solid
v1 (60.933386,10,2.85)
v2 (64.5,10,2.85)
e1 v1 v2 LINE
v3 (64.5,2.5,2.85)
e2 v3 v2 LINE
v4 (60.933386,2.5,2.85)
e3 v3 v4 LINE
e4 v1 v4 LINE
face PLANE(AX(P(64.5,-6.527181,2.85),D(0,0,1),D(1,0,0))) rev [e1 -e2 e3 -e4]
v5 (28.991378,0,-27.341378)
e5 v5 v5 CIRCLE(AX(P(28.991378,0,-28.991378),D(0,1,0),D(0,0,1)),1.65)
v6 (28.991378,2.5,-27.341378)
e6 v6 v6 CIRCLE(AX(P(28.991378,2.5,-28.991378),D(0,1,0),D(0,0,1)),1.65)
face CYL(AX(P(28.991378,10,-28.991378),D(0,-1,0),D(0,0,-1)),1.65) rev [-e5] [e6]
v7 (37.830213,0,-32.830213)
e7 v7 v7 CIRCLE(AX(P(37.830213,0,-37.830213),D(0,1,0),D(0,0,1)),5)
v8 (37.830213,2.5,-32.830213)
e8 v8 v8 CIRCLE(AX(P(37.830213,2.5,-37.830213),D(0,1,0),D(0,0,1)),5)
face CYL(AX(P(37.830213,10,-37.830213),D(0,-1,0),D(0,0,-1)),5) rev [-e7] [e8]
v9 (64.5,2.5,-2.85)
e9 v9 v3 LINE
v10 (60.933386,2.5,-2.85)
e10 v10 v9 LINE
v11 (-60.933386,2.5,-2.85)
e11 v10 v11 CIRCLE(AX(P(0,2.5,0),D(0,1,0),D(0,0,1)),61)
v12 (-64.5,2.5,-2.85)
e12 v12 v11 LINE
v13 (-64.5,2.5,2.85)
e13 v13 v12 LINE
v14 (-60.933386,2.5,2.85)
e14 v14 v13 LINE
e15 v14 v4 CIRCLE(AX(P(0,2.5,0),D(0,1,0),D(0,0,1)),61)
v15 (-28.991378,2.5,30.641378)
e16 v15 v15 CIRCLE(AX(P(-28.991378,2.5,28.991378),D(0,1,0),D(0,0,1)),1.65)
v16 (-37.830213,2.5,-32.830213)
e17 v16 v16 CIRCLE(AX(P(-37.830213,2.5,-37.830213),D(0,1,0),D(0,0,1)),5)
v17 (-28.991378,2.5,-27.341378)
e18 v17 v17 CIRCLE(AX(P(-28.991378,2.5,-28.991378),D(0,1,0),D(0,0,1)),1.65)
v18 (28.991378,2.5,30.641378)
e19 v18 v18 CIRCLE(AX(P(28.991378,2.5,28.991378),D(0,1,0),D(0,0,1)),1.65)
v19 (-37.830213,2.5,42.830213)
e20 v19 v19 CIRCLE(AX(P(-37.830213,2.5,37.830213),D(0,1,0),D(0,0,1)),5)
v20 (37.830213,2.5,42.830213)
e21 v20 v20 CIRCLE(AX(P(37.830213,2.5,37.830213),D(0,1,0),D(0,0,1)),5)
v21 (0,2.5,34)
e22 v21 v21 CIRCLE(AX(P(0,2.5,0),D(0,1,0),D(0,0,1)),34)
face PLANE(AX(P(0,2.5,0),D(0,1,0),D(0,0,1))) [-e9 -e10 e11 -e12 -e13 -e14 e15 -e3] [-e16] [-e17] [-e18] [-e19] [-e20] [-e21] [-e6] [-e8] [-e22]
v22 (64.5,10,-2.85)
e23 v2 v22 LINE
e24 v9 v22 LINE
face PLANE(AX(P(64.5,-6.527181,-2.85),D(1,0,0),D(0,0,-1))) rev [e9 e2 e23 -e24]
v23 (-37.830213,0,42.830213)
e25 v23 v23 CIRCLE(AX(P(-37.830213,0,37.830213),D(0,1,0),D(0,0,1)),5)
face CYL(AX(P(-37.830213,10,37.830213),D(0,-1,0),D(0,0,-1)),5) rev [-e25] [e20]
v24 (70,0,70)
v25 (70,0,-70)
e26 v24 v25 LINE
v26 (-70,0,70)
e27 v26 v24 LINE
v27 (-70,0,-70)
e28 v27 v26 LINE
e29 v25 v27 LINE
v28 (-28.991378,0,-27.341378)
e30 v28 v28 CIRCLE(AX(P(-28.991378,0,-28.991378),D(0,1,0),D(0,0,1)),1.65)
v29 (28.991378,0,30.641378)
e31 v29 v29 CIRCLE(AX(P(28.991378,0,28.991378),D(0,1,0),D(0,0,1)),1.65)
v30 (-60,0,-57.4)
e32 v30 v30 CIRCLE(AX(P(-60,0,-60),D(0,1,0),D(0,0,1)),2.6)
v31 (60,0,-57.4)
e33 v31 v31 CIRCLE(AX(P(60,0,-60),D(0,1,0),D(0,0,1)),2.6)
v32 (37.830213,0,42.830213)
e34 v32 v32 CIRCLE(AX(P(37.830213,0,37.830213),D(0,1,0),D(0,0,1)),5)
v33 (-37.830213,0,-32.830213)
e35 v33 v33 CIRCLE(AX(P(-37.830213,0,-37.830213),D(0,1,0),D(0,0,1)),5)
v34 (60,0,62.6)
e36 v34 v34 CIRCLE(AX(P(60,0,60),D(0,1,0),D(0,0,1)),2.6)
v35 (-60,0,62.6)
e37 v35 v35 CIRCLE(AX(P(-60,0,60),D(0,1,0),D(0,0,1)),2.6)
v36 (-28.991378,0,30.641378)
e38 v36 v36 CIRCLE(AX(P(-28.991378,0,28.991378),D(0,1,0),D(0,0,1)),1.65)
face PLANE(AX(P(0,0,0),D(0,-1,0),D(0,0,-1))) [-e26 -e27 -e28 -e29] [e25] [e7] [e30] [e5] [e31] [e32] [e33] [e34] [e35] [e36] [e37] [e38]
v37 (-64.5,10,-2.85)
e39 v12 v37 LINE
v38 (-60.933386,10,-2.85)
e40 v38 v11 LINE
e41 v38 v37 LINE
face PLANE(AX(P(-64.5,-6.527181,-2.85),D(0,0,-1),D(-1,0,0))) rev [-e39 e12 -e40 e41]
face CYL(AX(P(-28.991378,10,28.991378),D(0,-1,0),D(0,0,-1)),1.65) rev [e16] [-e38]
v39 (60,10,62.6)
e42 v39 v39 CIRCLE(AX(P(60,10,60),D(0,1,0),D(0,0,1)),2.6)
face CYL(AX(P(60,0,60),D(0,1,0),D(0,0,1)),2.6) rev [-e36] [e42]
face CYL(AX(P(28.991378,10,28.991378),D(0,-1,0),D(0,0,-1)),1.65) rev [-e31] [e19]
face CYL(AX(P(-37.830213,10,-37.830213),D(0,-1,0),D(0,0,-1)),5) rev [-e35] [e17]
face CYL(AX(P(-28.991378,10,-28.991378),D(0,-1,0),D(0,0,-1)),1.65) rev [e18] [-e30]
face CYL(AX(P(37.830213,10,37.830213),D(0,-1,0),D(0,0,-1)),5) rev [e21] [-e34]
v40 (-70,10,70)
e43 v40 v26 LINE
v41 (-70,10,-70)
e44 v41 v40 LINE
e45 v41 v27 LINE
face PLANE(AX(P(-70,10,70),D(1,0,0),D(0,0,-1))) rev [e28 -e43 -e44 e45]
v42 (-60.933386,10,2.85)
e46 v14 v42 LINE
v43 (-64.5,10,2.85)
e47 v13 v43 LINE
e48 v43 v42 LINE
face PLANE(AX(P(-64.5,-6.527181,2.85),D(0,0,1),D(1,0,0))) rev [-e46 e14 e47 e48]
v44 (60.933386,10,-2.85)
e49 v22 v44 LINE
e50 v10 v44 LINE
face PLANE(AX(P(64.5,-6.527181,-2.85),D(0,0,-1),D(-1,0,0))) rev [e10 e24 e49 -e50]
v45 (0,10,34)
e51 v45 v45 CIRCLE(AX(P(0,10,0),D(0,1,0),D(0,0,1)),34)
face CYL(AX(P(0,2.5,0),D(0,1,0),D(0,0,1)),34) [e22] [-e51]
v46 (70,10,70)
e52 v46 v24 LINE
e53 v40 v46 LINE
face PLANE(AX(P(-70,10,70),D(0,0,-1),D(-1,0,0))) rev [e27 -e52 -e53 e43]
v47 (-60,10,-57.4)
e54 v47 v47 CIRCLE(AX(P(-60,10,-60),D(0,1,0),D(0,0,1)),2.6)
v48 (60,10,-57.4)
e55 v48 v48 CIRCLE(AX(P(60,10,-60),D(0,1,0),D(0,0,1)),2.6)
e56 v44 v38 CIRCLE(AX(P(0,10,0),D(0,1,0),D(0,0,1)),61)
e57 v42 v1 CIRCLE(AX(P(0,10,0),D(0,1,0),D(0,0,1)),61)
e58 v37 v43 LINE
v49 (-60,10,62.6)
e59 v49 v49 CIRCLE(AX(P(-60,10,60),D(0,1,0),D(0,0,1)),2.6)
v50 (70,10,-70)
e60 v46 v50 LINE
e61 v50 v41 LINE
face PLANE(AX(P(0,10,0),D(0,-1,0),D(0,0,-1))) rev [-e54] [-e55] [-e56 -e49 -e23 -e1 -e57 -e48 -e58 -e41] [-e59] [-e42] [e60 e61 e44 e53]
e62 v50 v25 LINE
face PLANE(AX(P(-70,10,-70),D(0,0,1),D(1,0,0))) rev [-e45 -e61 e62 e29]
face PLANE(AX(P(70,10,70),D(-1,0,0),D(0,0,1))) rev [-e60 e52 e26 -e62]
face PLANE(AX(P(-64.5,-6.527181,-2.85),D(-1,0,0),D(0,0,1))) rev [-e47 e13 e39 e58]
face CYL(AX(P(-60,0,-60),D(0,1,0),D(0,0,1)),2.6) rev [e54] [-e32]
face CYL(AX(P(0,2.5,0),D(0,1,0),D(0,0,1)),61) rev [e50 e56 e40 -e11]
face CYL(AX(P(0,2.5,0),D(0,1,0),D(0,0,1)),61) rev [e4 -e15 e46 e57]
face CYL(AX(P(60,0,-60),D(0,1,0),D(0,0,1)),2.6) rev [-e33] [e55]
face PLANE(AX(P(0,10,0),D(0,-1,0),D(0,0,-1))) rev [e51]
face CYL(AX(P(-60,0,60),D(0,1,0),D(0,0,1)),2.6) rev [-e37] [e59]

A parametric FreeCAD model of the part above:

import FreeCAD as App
import Part
import Sketcher


def add_polygon(sketch, points):
    """Adds a closed chain of lines whose ends are joined by coincident constraints."""
    first, n = sketch.GeometryCount, len(points)
    for a, b in zip(points, points[1:] + points[:1]):
        sketch.addGeometry(Part.LineSegment(App.Vector(*a, 0), App.Vector(*b, 0)), False)
    for i in range(n):
        sketch.addConstraint(Sketcher.Constraint("Coincident", first + i, 2, first + (i + 1) % n, 1))

doc = App.newDocument("Part")
params = doc.addObject("Spreadsheet::Sheet", "Params")
for row, (alias, value) in enumerate([
    ("sketch1_diameter", "10 mm"),
    ("sketch1_diameter2", "3.3 mm"),
    ("sketch1_width", "140 mm"),
    ("pad1_length", "10 mm"),
    ("sketch2_diameter", "5.2 mm"),
    ("sketch3_diameter", "122 mm"),
    ("sketch3_diameter2", "92 mm"),
    ("pocket2_length", "7.5 mm"),
    ("sketch4_diameter", "92 mm"),
    ("sketch4_diameter2", "68 mm"),
    ("pocket3_length", "7.5 mm"),
    ("sketch5_width", "7 mm"),
    ("sketch5_height", "5.7 mm"),
    ("pocket4_length", "7.5 mm"),
], start=1):
    params.set(f"A{row}", alias)
    params.set(f"B{row}", "=" + value)
    params.setAlias(f"B{row}", alias)

body = doc.addObject("PartDesign::Body", "Body")

sketch1 = doc.addObject("Sketcher::SketchObject", "Sketch")
body.addObject(sketch1)
sketch1.AttachmentSupport = (doc.XZ_Plane, [""])
sketch1.MapMode = "FlatFace"
add_polygon(sketch1, [(-70, -70), (-70, 70), (70, 70), (70, -70)])
sketch1.addGeometry(Part.Circle(App.Vector(-37.8, 37.8, 0), App.Vector(0, 0, 1), 5), False)
sketch1.addGeometry(Part.Circle(App.Vector(-29, 29, 0), App.Vector(0, 0, 1), 1.6), False)
sketch1.addGeometry(Part.Circle(App.Vector(37.8, 37.8, 0), App.Vector(0, 0, 1), 5), False)
sketch1.addGeometry(Part.Circle(App.Vector(29, 29, 0), App.Vector(0, 0, 1), 1.6), False)
sketch1.addGeometry(Part.Circle(App.Vector(-29, -29, 0), App.Vector(0, 0, 1), 1.6), False)
sketch1.addGeometry(Part.Circle(App.Vector(-37.8, -37.8, 0), App.Vector(0, 0, 1), 5), False)
sketch1.addGeometry(Part.Circle(App.Vector(29, -29, 0), App.Vector(0, 0, 1), 1.6), False)
sketch1.addGeometry(Part.Circle(App.Vector(37.8, -37.8, 0), App.Vector(0, 0, 1), 5), False)
sketch1.addConstraint(Sketcher.Constraint("Vertical", 0))
sketch1.addConstraint(Sketcher.Constraint("Horizontal", 1))
sketch1.addConstraint(Sketcher.Constraint("Vertical", 2))
sketch1.addConstraint(Sketcher.Constraint("Horizontal", 3))
sketch1.addConstraint(Sketcher.Constraint("Equal", 4, 6))
sketch1.addConstraint(Sketcher.Constraint("Equal", 5, 7))
sketch1.addConstraint(Sketcher.Constraint("Equal", 7, 8))
sketch1.addConstraint(Sketcher.Constraint("Equal", 6, 9))
sketch1.addConstraint(Sketcher.Constraint("Equal", 8, 10))
sketch1.addConstraint(Sketcher.Constraint("Equal", 9, 11))
sketch1.addConstraint(Sketcher.Constraint("Symmetric", 7, 3, 8, 3, -1, 1))
sketch1.addConstraint(Sketcher.Constraint("Symmetric", 6, 3, 9, 3, -1, 1))
sketch1.addConstraint(Sketcher.Constraint("Symmetric", 5, 3, 10, 3, -1, 1))
sketch1.addConstraint(Sketcher.Constraint("Symmetric", 4, 3, 11, 3, -1, 1))
sketch1.addConstraint(Sketcher.Constraint("Symmetric", 0, 2, 2, 2, -1, 1))
sketch1.addConstraint(Sketcher.Constraint("Symmetric", 4, 3, 6, 3, -2))
sketch1.addConstraint(Sketcher.Constraint("Symmetric", 5, 3, 7, 3, -2))
sketch1.addConstraint(Sketcher.Constraint("Equal", 3, 0))
sketch1.addConstraint(Sketcher.Constraint("Diameter", 4, 10.0))
sketch1.addConstraint(Sketcher.Constraint("Diameter", 5, 3.3))
sketch1.addConstraint(Sketcher.Constraint("DistanceX", 1, 1, 1, 2, 140.0))
sketch1.addConstraint(Sketcher.Constraint("DistanceX", 5, 3, -1, 1, 28.991378))
sketch1.addConstraint(Sketcher.Constraint("DistanceY", -1, 1, 5, 3, 28.991378))
sketch1.addConstraint(Sketcher.Constraint("DistanceX", 5, 3, 6, 3, 66.821591))
sketch1.addConstraint(Sketcher.Constraint("DistanceY", 8, 3, 4, 3, 66.821591))
sketch1.setExpression("Constraints[22]", "Params.sketch1_diameter")
sketch1.setExpression("Constraints[23]", "Params.sketch1_diameter2")
sketch1.setExpression("Constraints[24]", "Params.sketch1_width")
pad1 = doc.addObject("PartDesign::Pad", "Pad")
body.addObject(pad1)
pad1.Profile = sketch1
pad1.setExpression("Length", "Params.pad1_length")
pad1.Reversed = True

sketch2 = doc.addObject("Sketcher::SketchObject", "Sketch001")
body.addObject(sketch2)
sketch2.AttachmentSupport = (doc.XZ_Plane, [""])
sketch2.MapMode = "FlatFace"
sketch2.AttachmentOffset = App.Placement(App.Vector(0, 0, -10), App.Rotation())
sketch2.addGeometry(Part.Circle(App.Vector(-60, -60, 0), App.Vector(0, 0, 1), 2.6), False)
sketch2.addGeometry(Part.Circle(App.Vector(60, -60, 0), App.Vector(0, 0, 1), 2.6), False)
sketch2.addGeometry(Part.Circle(App.Vector(60, 60, 0), App.Vector(0, 0, 1), 2.6), False)
sketch2.addGeometry(Part.Circle(App.Vector(-60, 60, 0), App.Vector(0, 0, 1), 2.6), False)
sketch2.addConstraint(Sketcher.Constraint("Equal", 0, 1))
sketch2.addConstraint(Sketcher.Constraint("Equal", 1, 2))
sketch2.addConstraint(Sketcher.Constraint("Equal", 2, 3))
sketch2.addConstraint(Sketcher.Constraint("Symmetric", 0, 3, 2, 3, -1, 1))
sketch2.addConstraint(Sketcher.Constraint("Symmetric", 1, 3, 3, 3, -1, 1))
sketch2.addConstraint(Sketcher.Constraint("Symmetric", 0, 3, 1, 3, -2))
sketch2.addConstraint(Sketcher.Constraint("Diameter", 0, 5.2))
sketch2.addConstraint(Sketcher.Constraint("DistanceX", 0, 3, -1, 1, 60.0))
sketch2.addConstraint(Sketcher.Constraint("DistanceY", 0, 3, -1, 1, 60.0))
sketch2.setExpression("Constraints[6]", "Params.sketch2_diameter")
pocket1 = doc.addObject("PartDesign::Pocket", "Pocket")
body.addObject(pocket1)
pocket1.Profile = sketch2
pocket1.Type = "ThroughAll"
pocket1.Reversed = True

sketch3 = doc.addObject("Sketcher::SketchObject", "Sketch002")
body.addObject(sketch3)
sketch3.AttachmentSupport = (doc.XZ_Plane, [""])
sketch3.MapMode = "FlatFace"
sketch3.AttachmentOffset = App.Placement(App.Vector(0, 0, -10), App.Rotation())
sketch3.addGeometry(Part.Circle(App.Vector(0, 0, 0), App.Vector(0, 0, 1), 61), False)
sketch3.addGeometry(Part.Circle(App.Vector(0, 0, 0), App.Vector(0, 0, 1), 46), False)
sketch3.addConstraint(Sketcher.Constraint("Coincident", 0, 3, -1, 1))
sketch3.addConstraint(Sketcher.Constraint("Coincident", 1, 3, -1, 1))
sketch3.addConstraint(Sketcher.Constraint("Diameter", 0, 122.0))
sketch3.addConstraint(Sketcher.Constraint("Diameter", 1, 92.0))
sketch3.setExpression("Constraints[2]", "Params.sketch3_diameter")
sketch3.setExpression("Constraints[3]", "Params.sketch3_diameter2")
pocket2 = doc.addObject("PartDesign::Pocket", "Pocket001")
body.addObject(pocket2)
pocket2.Profile = sketch3
pocket2.setExpression("Length", "Params.pocket2_length")
pocket2.Reversed = True

sketch4 = doc.addObject("Sketcher::SketchObject", "Sketch003")
body.addObject(sketch4)
sketch4.AttachmentSupport = (doc.XZ_Plane, [""])
sketch4.MapMode = "FlatFace"
sketch4.AttachmentOffset = App.Placement(App.Vector(0, 0, -10), App.Rotation())
sketch4.addGeometry(Part.Circle(App.Vector(0, 0, 0), App.Vector(0, 0, 1), 46), False)
sketch4.addGeometry(Part.Circle(App.Vector(0, 0, 0), App.Vector(0, 0, 1), 34), False)
sketch4.addConstraint(Sketcher.Constraint("Coincident", 0, 3, -1, 1))
sketch4.addConstraint(Sketcher.Constraint("Coincident", 1, 3, -1, 1))
sketch4.addConstraint(Sketcher.Constraint("Diameter", 0, 92.0))
sketch4.addConstraint(Sketcher.Constraint("Diameter", 1, 68.0))
sketch4.setExpression("Constraints[2]", "Params.sketch4_diameter")
sketch4.setExpression("Constraints[3]", "Params.sketch4_diameter2")
pocket3 = doc.addObject("PartDesign::Pocket", "Pocket002")
body.addObject(pocket3)
pocket3.Profile = sketch4
pocket3.setExpression("Length", "Params.pocket3_length")
pocket3.Reversed = True

sketch5 = doc.addObject("Sketcher::SketchObject", "Sketch004")
body.addObject(sketch5)
sketch5.AttachmentSupport = (doc.XZ_Plane, [""])
sketch5.MapMode = "FlatFace"
sketch5.AttachmentOffset = App.Placement(App.Vector(0, 0, -10), App.Rotation())
add_polygon(sketch5, [(-64, -3), (-64, 3), (-58, 3), (-58, -3)])
add_polygon(sketch5, [(58, -3), (58, 3), (64, 3), (64, -3)])
sketch5.addConstraint(Sketcher.Constraint("Vertical", 0))
sketch5.addConstraint(Sketcher.Constraint("Horizontal", 1))
sketch5.addConstraint(Sketcher.Constraint("Vertical", 2))
sketch5.addConstraint(Sketcher.Constraint("Horizontal", 3))
sketch5.addConstraint(Sketcher.Constraint("Vertical", 4))
sketch5.addConstraint(Sketcher.Constraint("Horizontal", 5))
sketch5.addConstraint(Sketcher.Constraint("Vertical", 6))
sketch5.addConstraint(Sketcher.Constraint("Horizontal", 7))
sketch5.addConstraint(Sketcher.Constraint("Symmetric", 2, 2, 4, 2, -1, 1))
sketch5.addConstraint(Sketcher.Constraint("Symmetric", 0, 2, 6, 2, -1, 1))
sketch5.addConstraint(Sketcher.Constraint("Horizontal", 1, 2, 4, 2))
sketch5.addConstraint(Sketcher.Constraint("DistanceX", 1, 1, 1, 2, 7.0))
sketch5.addConstraint(Sketcher.Constraint("DistanceY", 0, 1, 0, 2, 5.7))
sketch5.addConstraint(Sketcher.Constraint("DistanceX", 1, 2, 4, 2, 115.0))
sketch5.setExpression("Constraints[19]", "Params.sketch5_width")
sketch5.setExpression("Constraints[20]", "Params.sketch5_height")
pocket4 = doc.addObject("PartDesign::Pocket", "Pocket003")
body.addObject(pocket4)
pocket4.Profile = sketch5
pocket4.setExpression("Length", "Params.pocket4_length")
pocket4.Reversed = True

doc.recompute()
